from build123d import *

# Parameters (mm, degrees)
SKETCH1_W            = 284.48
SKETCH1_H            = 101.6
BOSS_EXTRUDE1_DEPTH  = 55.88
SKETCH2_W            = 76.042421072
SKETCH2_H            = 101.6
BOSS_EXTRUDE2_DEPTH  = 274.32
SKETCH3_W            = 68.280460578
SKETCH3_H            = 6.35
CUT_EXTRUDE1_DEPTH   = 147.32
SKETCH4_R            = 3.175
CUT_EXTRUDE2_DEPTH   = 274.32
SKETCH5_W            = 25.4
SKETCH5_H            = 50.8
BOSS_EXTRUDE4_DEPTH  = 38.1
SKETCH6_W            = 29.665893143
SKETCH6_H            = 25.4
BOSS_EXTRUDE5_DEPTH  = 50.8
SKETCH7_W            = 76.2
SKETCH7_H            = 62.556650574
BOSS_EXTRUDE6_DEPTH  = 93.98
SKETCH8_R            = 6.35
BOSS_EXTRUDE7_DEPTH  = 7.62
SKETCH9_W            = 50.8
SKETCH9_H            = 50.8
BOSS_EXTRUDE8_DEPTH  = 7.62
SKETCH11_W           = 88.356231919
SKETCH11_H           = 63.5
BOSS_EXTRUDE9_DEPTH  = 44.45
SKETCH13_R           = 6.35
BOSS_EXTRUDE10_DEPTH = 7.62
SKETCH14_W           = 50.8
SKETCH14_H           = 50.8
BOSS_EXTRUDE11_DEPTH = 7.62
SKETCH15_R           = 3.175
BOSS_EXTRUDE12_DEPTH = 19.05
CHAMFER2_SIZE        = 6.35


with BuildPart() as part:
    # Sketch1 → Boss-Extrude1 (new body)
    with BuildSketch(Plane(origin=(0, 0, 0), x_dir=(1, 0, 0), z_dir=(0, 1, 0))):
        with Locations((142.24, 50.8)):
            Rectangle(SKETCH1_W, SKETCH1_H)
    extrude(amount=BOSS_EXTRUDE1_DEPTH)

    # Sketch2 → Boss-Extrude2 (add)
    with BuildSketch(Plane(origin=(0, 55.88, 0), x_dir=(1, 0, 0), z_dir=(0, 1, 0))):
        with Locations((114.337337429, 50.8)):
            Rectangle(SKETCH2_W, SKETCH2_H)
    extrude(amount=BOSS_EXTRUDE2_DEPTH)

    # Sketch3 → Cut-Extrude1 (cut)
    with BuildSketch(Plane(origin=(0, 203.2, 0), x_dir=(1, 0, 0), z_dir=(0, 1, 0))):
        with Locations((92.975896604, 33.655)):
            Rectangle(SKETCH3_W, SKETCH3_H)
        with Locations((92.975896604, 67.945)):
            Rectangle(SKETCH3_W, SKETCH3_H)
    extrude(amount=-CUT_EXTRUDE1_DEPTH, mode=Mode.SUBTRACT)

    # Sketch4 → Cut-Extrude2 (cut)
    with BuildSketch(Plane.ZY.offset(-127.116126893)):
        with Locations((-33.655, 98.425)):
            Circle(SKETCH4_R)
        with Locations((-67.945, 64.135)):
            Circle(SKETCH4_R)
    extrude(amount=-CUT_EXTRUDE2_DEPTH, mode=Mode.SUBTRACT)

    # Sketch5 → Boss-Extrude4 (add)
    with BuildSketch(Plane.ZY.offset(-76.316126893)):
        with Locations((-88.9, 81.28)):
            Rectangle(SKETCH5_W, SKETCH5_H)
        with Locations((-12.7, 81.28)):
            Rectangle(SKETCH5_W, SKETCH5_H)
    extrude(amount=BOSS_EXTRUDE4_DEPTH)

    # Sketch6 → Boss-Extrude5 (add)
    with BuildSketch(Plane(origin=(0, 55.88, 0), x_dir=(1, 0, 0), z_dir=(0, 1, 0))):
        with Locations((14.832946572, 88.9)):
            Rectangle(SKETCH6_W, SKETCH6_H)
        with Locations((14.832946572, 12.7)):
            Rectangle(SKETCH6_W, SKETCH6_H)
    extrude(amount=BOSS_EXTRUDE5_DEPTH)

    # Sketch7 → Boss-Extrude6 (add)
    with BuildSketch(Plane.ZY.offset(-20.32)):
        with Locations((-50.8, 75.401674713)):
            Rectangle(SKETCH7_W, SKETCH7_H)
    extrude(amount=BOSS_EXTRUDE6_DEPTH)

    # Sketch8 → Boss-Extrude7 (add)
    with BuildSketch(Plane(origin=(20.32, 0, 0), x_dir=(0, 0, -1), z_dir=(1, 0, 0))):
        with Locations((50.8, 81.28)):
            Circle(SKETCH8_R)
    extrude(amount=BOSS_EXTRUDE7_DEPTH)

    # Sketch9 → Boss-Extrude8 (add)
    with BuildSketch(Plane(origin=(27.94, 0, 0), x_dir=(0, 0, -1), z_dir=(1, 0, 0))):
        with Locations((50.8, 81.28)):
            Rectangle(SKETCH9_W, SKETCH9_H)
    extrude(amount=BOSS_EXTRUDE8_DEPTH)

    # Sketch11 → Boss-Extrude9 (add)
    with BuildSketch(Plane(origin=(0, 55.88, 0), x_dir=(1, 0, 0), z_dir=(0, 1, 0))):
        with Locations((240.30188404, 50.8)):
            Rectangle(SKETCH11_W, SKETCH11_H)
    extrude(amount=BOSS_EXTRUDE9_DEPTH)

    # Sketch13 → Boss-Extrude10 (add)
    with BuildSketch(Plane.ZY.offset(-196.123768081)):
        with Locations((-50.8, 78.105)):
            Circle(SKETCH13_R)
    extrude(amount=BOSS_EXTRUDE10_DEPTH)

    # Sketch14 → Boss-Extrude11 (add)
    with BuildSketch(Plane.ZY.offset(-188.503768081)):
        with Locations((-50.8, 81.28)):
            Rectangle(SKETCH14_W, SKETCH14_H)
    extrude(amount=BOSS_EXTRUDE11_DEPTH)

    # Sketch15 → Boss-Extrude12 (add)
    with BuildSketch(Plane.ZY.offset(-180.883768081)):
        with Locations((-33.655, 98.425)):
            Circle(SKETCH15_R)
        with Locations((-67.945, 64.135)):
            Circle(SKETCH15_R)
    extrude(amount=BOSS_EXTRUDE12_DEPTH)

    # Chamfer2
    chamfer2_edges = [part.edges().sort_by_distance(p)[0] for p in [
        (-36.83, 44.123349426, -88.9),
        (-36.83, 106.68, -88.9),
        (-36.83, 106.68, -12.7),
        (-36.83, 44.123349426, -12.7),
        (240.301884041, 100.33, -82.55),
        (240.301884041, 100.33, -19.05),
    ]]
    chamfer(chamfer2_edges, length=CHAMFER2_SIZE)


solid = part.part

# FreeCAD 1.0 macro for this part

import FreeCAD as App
import Part
import Sketcher
from FreeCAD import Vector
Q = App.Units.Quantity


def edges_at(feature, points):
    """Names of the edges that pass closest to the given points."""
    edges = feature.Shape.Edges
    near = lambda p: min(range(len(edges)), key=lambda i: edges[i].distToShape(Part.Vertex(*p))[0])
    return sorted({f"Edge{near(p) + 1}" for p in points})

doc = App.newDocument("Part")
body = doc.addObject("PartDesign::Body", "Body")

# Sketch on XZ plane
sketch1 = body.newObject("Sketcher::SketchObject", "Sketch")
sketch1.AttachmentSupport = (doc.getObject("XZ_Plane"), [""])
sketch1.MapMode = "FlatFace"
sketch1.addGeometry(Part.LineSegment(Vector(0, -102, 0), Vector(0, 0, 0)), False)
sketch1.addGeometry(Part.LineSegment(Vector(0, 0, 0), Vector(284, 0, 0)), False)
sketch1.addGeometry(Part.LineSegment(Vector(284, 0, 0), Vector(284, -102, 0)), False)
sketch1.addGeometry(Part.LineSegment(Vector(284, -102, 0), Vector(0, -102, 0)), False)
sketch1.addConstraint(Sketcher.Constraint("Coincident", 0, 2, 1, 1))
sketch1.addConstraint(Sketcher.Constraint("Coincident", 1, 2, 2, 1))
sketch1.addConstraint(Sketcher.Constraint("Coincident", 2, 2, 3, 1))
sketch1.addConstraint(Sketcher.Constraint("Coincident", 3, 2, 0, 1))
sketch1.addConstraint(Sketcher.Constraint("Vertical", 0))
sketch1.addConstraint(Sketcher.Constraint("Horizontal", 1))
sketch1.addConstraint(Sketcher.Constraint("Vertical", 2))
sketch1.addConstraint(Sketcher.Constraint("Horizontal", 3))
sketch1.addConstraint(Sketcher.Constraint("Coincident", 0, 2, -1, 1))
sketch1.addConstraint(Sketcher.Constraint("DistanceY", 0, 1, 0, 2, Q("4 in")))
sketch1.addConstraint(Sketcher.Constraint("DistanceX", 1, 1, 1, 2, Q("11.2 in")))
pad1 = body.newObject("PartDesign::Pad", "Pad")
pad1.Profile = sketch1
pad1.Length = Q("2.2 in")
pad1.Reversed = True

# Sketch on XZ plane
sketch2 = body.newObject("Sketcher::SketchObject", "Sketch001")
sketch2.AttachmentSupport = (doc.getObject("XZ_Plane"), [""])
sketch2.MapMode = "FlatFace"
sketch2.AttachmentOffset = App.Placement(Vector(0, 0, -2.2 * 25.4), App.Rotation())
sketch2.addGeometry(Part.LineSegment(Vector(76, -102, 0), Vector(76, 0, 0)), False)
sketch2.addGeometry(Part.LineSegment(Vector(76, 0, 0), Vector(152, 0, 0)), False)
sketch2.addGeometry(Part.LineSegment(Vector(152, 0, 0), Vector(152, -102, 0)), False)
sketch2.addGeometry(Part.LineSegment(Vector(152, -102, 0), Vector(76, -102, 0)), False)
sketch2.addConstraint(Sketcher.Constraint("Coincident", 0, 2, 1, 1))
sketch2.addConstraint(Sketcher.Constraint("Coincident", 1, 2, 2, 1))
sketch2.addConstraint(Sketcher.Constraint("Coincident", 2, 2, 3, 1))
sketch2.addConstraint(Sketcher.Constraint("Coincident", 3, 2, 0, 1))
sketch2.addConstraint(Sketcher.Constraint("Vertical", 0))
sketch2.addConstraint(Sketcher.Constraint("Horizontal", 1))
sketch2.addConstraint(Sketcher.Constraint("Vertical", 2))
sketch2.addConstraint(Sketcher.Constraint("Horizontal", 3))
sketch2.addConstraint(Sketcher.Constraint("PointOnObject", 0, 2, -1))
sketch2.addConstraint(Sketcher.Constraint("DistanceY", 0, 1, 0, 2, Q("4 in")))
sketch2.addConstraint(Sketcher.Constraint("DistanceX", 1, 1, 1, 2, Q("76.042421 mm")))
sketch2.addConstraint(Sketcher.Constraint("DistanceX", -1, 1, 0, 2, Q("76.316127 mm")))
pad2 = body.newObject("PartDesign::Pad", "Pad001")
pad2.Profile = sketch2
pad2.Length = Q("10.8 in")
pad2.Reversed = True

# Sketch on XZ plane
sketch3 = body.newObject("Sketcher::SketchObject", "Sketch002")
sketch3.AttachmentSupport = (doc.getObject("XZ_Plane"), [""])
sketch3.MapMode = "FlatFace"
sketch3.AttachmentOffset = App.Placement(Vector(0, 0, -8 * 25.4), App.Rotation())
sketch3.addGeometry(Part.LineSegment(Vector(59, -37, 0), Vector(59, -30, 0)), False)
sketch3.addGeometry(Part.LineSegment(Vector(59, -30, 0), Vector(127, -30, 0)), False)
sketch3.addGeometry(Part.LineSegment(Vector(127, -30, 0), Vector(127, -37, 0)), False)
sketch3.addGeometry(Part.LineSegment(Vector(127, -37, 0), Vector(59, -37, 0)), False)
sketch3.addGeometry(Part.LineSegment(Vector(59, -71, 0), Vector(59, -65, 0)), False)
sketch3.addGeometry(Part.LineSegment(Vector(59, -65, 0), Vector(127, -65, 0)), False)
sketch3.addGeometry(Part.LineSegment(Vector(127, -65, 0), Vector(127, -71, 0)), False)
sketch3.addGeometry(Part.LineSegment(Vector(127, -71, 0), Vector(59, -71, 0)), False)
sketch3.addConstraint(Sketcher.Constraint("Coincident", 0, 2, 1, 1))
sketch3.addConstraint(Sketcher.Constraint("Coincident", 1, 2, 2, 1))
sketch3.addConstraint(Sketcher.Constraint("Coincident", 2, 2, 3, 1))
sketch3.addConstraint(Sketcher.Constraint("Coincident", 3, 2, 0, 1))
sketch3.addConstraint(Sketcher.Constraint("Coincident", 4, 2, 5, 1))
sketch3.addConstraint(Sketcher.Constraint("Coincident", 5, 2, 6, 1))
sketch3.addConstraint(Sketcher.Constraint("Coincident", 6, 2, 7, 1))
sketch3.addConstraint(Sketcher.Constraint("Coincident", 7, 2, 4, 1))
sketch3.addConstraint(Sketcher.Constraint("Vertical", 0))
sketch3.addConstraint(Sketcher.Constraint("Horizontal", 1))
sketch3.addConstraint(Sketcher.Constraint("Vertical", 2))
sketch3.addConstraint(Sketcher.Constraint("Horizontal", 3))
sketch3.addConstraint(Sketcher.Constraint("Vertical", 4))
sketch3.addConstraint(Sketcher.Constraint("Horizontal", 5))
sketch3.addConstraint(Sketcher.Constraint("Vertical", 6))
sketch3.addConstraint(Sketcher.Constraint("Horizontal", 7))
sketch3.addConstraint(Sketcher.Constraint("Vertical", 3, 2, 4, 2))
sketch3.addConstraint(Sketcher.Constraint("Vertical", 2, 2, 5, 2))
sketch3.addConstraint(Sketcher.Constraint("Equal", 2, 4))
sketch3.addConstraint(Sketcher.Constraint("DistanceY", 0, 1, 0, 2, Q("0.25 in")))
sketch3.addConstraint(Sketcher.Constraint("DistanceY", 0, 2, -1, 1, Q("1.2 in")))
sketch3.addConstraint(Sketcher.Constraint("DistanceY", 6, 2, -1, 1, Q("2.8 in")))
sketch3.addConstraint(Sketcher.Constraint("DistanceX", 1, 1, 1, 2, Q("68.280461 mm")))
sketch3.addConstraint(Sketcher.Constraint("DistanceX", -1, 1, 0, 2, Q("58.835666 mm")))
pocket1 = body.newObject("PartDesign::Pocket", "Pocket")
pocket1.Profile = sketch3
pocket1.Length = Q("5.8 in")
pocket1.Reversed = True

# Sketch on YZ plane
sketch4 = body.newObject("Sketcher::SketchObject", "Sketch003")
sketch4.AttachmentSupport = (doc.getObject("YZ_Plane"), [""])
sketch4.MapMode = "FlatFace"
sketch4.AttachmentOffset = App.Placement(Vector(0, 0, 127.116127), App.Rotation())
sketch4.addGeometry(Part.Circle(Vector(98.4, -33.7, 0), Vector(0, 0, 1), 3.2), False)
sketch4.addGeometry(Part.Circle(Vector(64.1, -67.9, 0), Vector(0, 0, 1), 3.2), False)
sketch4.addConstraint(Sketcher.Constraint("Equal", 0, 1))
sketch4.addConstraint(Sketcher.Constraint("Diameter", 0, Q("0.25 in")))
sketch4.addConstraint(Sketcher.Constraint("DistanceX", 1, 3, 0, 3, Q("1.35 in")))
sketch4.addConstraint(Sketcher.Constraint("DistanceY", 1, 3, 0, 3, Q("1.35 in")))
sketch4.addConstraint(Sketcher.Constraint("DistanceX", -1, 1, 0, 3, Q("3.875 in")))
sketch4.addConstraint(Sketcher.Constraint("DistanceY", 0, 3, -1, 1, Q("1.325 in")))
pocket2 = body.newObject("PartDesign::Pocket", "Pocket001")
pocket2.Profile = sketch4
pocket2.Length = Q("10.8 in")
pocket2.Reversed = True

# Sketch on YZ plane
sketch5 = body.newObject("Sketcher::SketchObject", "Sketch004")
sketch5.AttachmentSupport = (doc.getObject("YZ_Plane"), [""])
sketch5.MapMode = "FlatFace"
sketch5.AttachmentOffset = App.Placement(Vector(0, 0, 76.316127), App.Rotation())
sketch5.addGeometry(Part.LineSegment(Vector(107, -102, 0), Vector(56, -102, 0)), False)
sketch5.addGeometry(Part.LineSegment(Vector(56, -102, 0), Vector(56, -76, 0)), False)
sketch5.addGeometry(Part.LineSegment(Vector(56, -76, 0), Vector(107, -76, 0)), False)
sketch5.addGeometry(Part.LineSegment(Vector(107, -76, 0), Vector(107, -102, 0)), False)
sketch5.addGeometry(Part.LineSegment(Vector(107, -25, 0), Vector(56, -25, 0)), False)
sketch5.addGeometry(Part.LineSegment(Vector(56, -25, 0), Vector(56, 0, 0)), False)
sketch5.addGeometry(Part.LineSegment(Vector(56, 0, 0), Vector(107, 0, 0)), False)
sketch5.addGeometry(Part.LineSegment(Vector(107, 0, 0), Vector(107, -25, 0)), False)
sketch5.addConstraint(Sketcher.Constraint("Coincident", 0, 2, 1, 1))
sketch5.addConstraint(Sketcher.Constraint("Coincident", 1, 2, 2, 1))
sketch5.addConstraint(Sketcher.Constraint("Coincident", 2, 2, 3, 1))
sketch5.addConstraint(Sketcher.Constraint("Coincident", 3, 2, 0, 1))
sketch5.addConstraint(Sketcher.Constraint("Coincident", 4, 2, 5, 1))
sketch5.addConstraint(Sketcher.Constraint("Coincident", 5, 2, 6, 1))
sketch5.addConstraint(Sketcher.Constraint("Coincident", 6, 2, 7, 1))
sketch5.addConstraint(Sketcher.Constraint("Coincident", 7, 2, 4, 1))
sketch5.addConstraint(Sketcher.Constraint("Horizontal", 0))
sketch5.addConstraint(Sketcher.Constraint("Vertical", 1))
sketch5.addConstraint(Sketcher.Constraint("Horizontal", 2))
sketch5.addConstraint(Sketcher.Constraint("Vertical", 3))
sketch5.addConstraint(Sketcher.Constraint("Horizontal", 4))
sketch5.addConstraint(Sketcher.Constraint("Vertical", 5))
sketch5.addConstraint(Sketcher.Constraint("Horizontal", 6))
sketch5.addConstraint(Sketcher.Constraint("Vertical", 7))
sketch5.addConstraint(Sketcher.Constraint("PointOnObject", 5, 2, -1))
sketch5.addConstraint(Sketcher.Constraint("Vertical", 1, 2, 4, 2))
sketch5.addConstraint(Sketcher.Constraint("Vertical", 3, 2, 6, 2))
sketch5.addConstraint(Sketcher.Constraint("Equal", 3, 5))
sketch5.addConstraint(Sketcher.Constraint("DistanceX", 0, 2, 0, 1, Q("2 in")))
sketch5.addConstraint(Sketcher.Constraint("DistanceY", 1, 1, 1, 2, Q("1 in")))
sketch5.addConstraint(Sketcher.Constraint("DistanceY", 0, 2, -1, 1, Q("4 in")))
sketch5.addConstraint(Sketcher.Constraint("DistanceX", -1, 1, 0, 2, Q("2.2 in")))
pad3 = body.newObject("PartDesign::Pad", "Pad002")
pad3.Profile = sketch5
pad3.Length = Q("1.5 in")
pad3.Reversed = True

# Sketch on XZ plane
sketch6 = body.newObject("Sketcher::SketchObject", "Sketch005")
sketch6.AttachmentSupport = (doc.getObject("XZ_Plane"), [""])
sketch6.MapMode = "FlatFace"
sketch6.AttachmentOffset = App.Placement(Vector(0, 0, -2.2 * 25.4), App.Rotation())
sketch6.addGeometry(Part.LineSegment(Vector(0, -102, 0), Vector(0, -76, 0)), False)
sketch6.addGeometry(Part.LineSegment(Vector(0, -76, 0), Vector(30, -76, 0)), False)
sketch6.addGeometry(Part.LineSegment(Vector(30, -76, 0), Vector(30, -102, 0)), False)
sketch6.addGeometry(Part.LineSegment(Vector(30, -102, 0), Vector(0, -102, 0)), False)
sketch6.addGeometry(Part.LineSegment(Vector(0, -25, 0), Vector(0, 0, 0)), False)
sketch6.addGeometry(Part.LineSegment(Vector(0, 0, 0), Vector(30, 0, 0)), False)
sketch6.addGeometry(Part.LineSegment(Vector(30, 0, 0), Vector(30, -25, 0)), False)
sketch6.addGeometry(Part.LineSegment(Vector(30, -25, 0), Vector(0, -25, 0)), False)
sketch6.addConstraint(Sketcher.Constraint("Coincident", 0, 2, 1, 1))
sketch6.addConstraint(Sketcher.Constraint("Coincident", 1, 2, 2, 1))
sketch6.addConstraint(Sketcher.Constraint("Coincident", 2, 2, 3, 1))
sketch6.addConstraint(Sketcher.Constraint("Coincident", 3, 2, 0, 1))
sketch6.addConstraint(Sketcher.Constraint("Coincident", 4, 2, 5, 1))
sketch6.addConstraint(Sketcher.Constraint("Coincident", 5, 2, 6, 1))
sketch6.addConstraint(Sketcher.Constraint("Coincident", 6, 2, 7, 1))
sketch6.addConstraint(Sketcher.Constraint("Coincident", 7, 2, 4, 1))
sketch6.addConstraint(Sketcher.Constraint("Vertical", 0))
sketch6.addConstraint(Sketcher.Constraint("Horizontal", 1))
sketch6.addConstraint(Sketcher.Constraint("Vertical", 2))
sketch6.addConstraint(Sketcher.Constraint("Horizontal", 3))
sketch6.addConstraint(Sketcher.Constraint("Vertical", 4))
sketch6.addConstraint(Sketcher.Constraint("Horizontal", 5))
sketch6.addConstraint(Sketcher.Constraint("Vertical", 6))
sketch6.addConstraint(Sketcher.Constraint("Horizontal", 7))
sketch6.addConstraint(Sketcher.Constraint("Coincident", 4, 2, -1, 1))
sketch6.addConstraint(Sketcher.Constraint("PointOnObject", 0, 2, -2))
sketch6.addConstraint(Sketcher.Constraint("Vertical", 2, 2, 5, 2))
sketch6.addConstraint(Sketcher.Constraint("Equal", 2, 4))
sketch6.addConstraint(Sketcher.Constraint("DistanceY", 0, 1, 0, 2, Q("1 in")))
sketch6.addConstraint(Sketcher.Constraint("DistanceY", 0, 2, -1, 1, Q("3 in")))
sketch6.addConstraint(Sketcher.Constraint("DistanceX", 1, 1, 1, 2, Q("29.665893 mm")))
pad4 = body.newObject("PartDesign::Pad", "Pad003")
pad4.Profile = sketch6
pad4.Length = Q("2 in")
pad4.Reversed = True

# Sketch on YZ plane
sketch7 = body.newObject("Sketcher::SketchObject", "Sketch006")
sketch7.AttachmentSupport = (doc.getObject("YZ_Plane"), [""])
sketch7.MapMode = "FlatFace"
sketch7.AttachmentOffset = App.Placement(Vector(0, 0, 0.8 * 25.4), App.Rotation())
sketch7.addGeometry(Part.LineSegment(Vector(107, -89, 0), Vector(44, -89, 0)), False)
sketch7.addGeometry(Part.LineSegment(Vector(44, -89, 0), Vector(44, -13, 0)), False)
sketch7.addGeometry(Part.LineSegment(Vector(44, -13, 0), Vector(107, -13, 0)), False)
sketch7.addGeometry(Part.LineSegment(Vector(107, -13, 0), Vector(107, -89, 0)), False)
sketch7.addConstraint(Sketcher.Constraint("Coincident", 0, 2, 1, 1))
sketch7.addConstraint(Sketcher.Constraint("Coincident", 1, 2, 2, 1))
sketch7.addConstraint(Sketcher.Constraint("Coincident", 2, 2, 3, 1))
sketch7.addConstraint(Sketcher.Constraint("Coincident", 3, 2, 0, 1))
sketch7.addConstraint(Sketcher.Constraint("Horizontal", 0))
sketch7.addConstraint(Sketcher.Constraint("Vertical", 1))
sketch7.addConstraint(Sketcher.Constraint("Horizontal", 2))
sketch7.addConstraint(Sketcher.Constraint("Vertical", 3))
sketch7.addConstraint(Sketcher.Constraint("DistanceY", 1, 1, 1, 2, Q("3 in")))
sketch7.addConstraint(Sketcher.Constraint("DistanceY", 0, 2, -1, 1, Q("3.5 in")))
sketch7.addConstraint(Sketcher.Constraint("DistanceX", -1, 1, 2, 2, Q("4.2 in")))
sketch7.addConstraint(Sketcher.Constraint("DistanceX", 0, 2, 0, 1, Q("62.556651 mm")))
pad5 = body.newObject("PartDesign::Pad", "Pad004")
pad5.Profile = sketch7
pad5.Length = Q("3.7 in")
pad5.Reversed = True

# Sketch on YZ plane
sketch8 = body.newObject("Sketcher::SketchObject", "Sketch007")
sketch8.AttachmentSupport = (doc.getObject("YZ_Plane"), [""])
sketch8.MapMode = "FlatFace"
sketch8.AttachmentOffset = App.Placement(Vector(0, 0, 0.8 * 25.4), App.Rotation())
sketch8.addGeometry(Part.Circle(Vector(81, -51, 0), Vector(0, 0, 1), 6), False)
sketch8.addConstraint(Sketcher.Constraint("Diameter", 0, Q("0.5 in")))
sketch8.addConstraint(Sketcher.Constraint("DistanceY", 0, 3, -1, 1, Q("2 in")))
sketch8.addConstraint(Sketcher.Constraint("DistanceX", -1, 1, 0, 3, Q("3.2 in")))
pad6 = body.newObject("PartDesign::Pad", "Pad005")
pad6.Profile = sketch8
pad6.Length = Q("0.3 in")

# Sketch on YZ plane
sketch9 = body.newObject("Sketcher::SketchObject", "Sketch008")
sketch9.AttachmentSupport = (doc.getObject("YZ_Plane"), [""])
sketch9.MapMode = "FlatFace"
sketch9.AttachmentOffset = App.Placement(Vector(0, 0, 1.1 * 25.4), App.Rotation())
sketch9.addGeometry(Part.LineSegment(Vector(107, -25, 0), Vector(56, -25, 0)), False)
sketch9.addGeometry(Part.LineSegment(Vector(56, -25, 0), Vector(56, -76, 0)), False)
sketch9.addGeometry(Part.LineSegment(Vector(56, -76, 0), Vector(107, -76, 0)), False)
sketch9.addGeometry(Part.LineSegment(Vector(107, -76, 0), Vector(107, -25, 0)), False)
sketch9.addConstraint(Sketcher.Constraint("Coincident", 0, 2, 1, 1))
sketch9.addConstraint(Sketcher.Constraint("Coincident", 1, 2, 2, 1))
sketch9.addConstraint(Sketcher.Constraint("Coincident", 2, 2, 3, 1))
sketch9.addConstraint(Sketcher.Constraint("Coincident", 3, 2, 0, 1))
sketch9.addConstraint(Sketcher.Constraint("Horizontal", 0))
sketch9.addConstraint(Sketcher.Constraint("Vertical", 1))
sketch9.addConstraint(Sketcher.Constraint("Horizontal", 2))
sketch9.addConstraint(Sketcher.Constraint("Vertical", 3))
sketch9.addConstraint(Sketcher.Constraint("Equal", 2, 1))
sketch9.addConstraint(Sketcher.Constraint("DistanceX", 0, 2, 0, 1, Q("2 in")))
sketch9.addConstraint(Sketcher.Constraint("DistanceY", 0, 2, -1, 1, Q("1 in")))
sketch9.addConstraint(Sketcher.Constraint("DistanceX", -1, 1, 0, 2, Q("2.2 in")))
pad7 = body.newObject("PartDesign::Pad", "Pad006")
pad7.Profile = sketch9
pad7.Length = Q("0.3 in")

# Sketch on XZ plane
sketch10 = body.newObject("Sketcher::SketchObject", "Sketch009")
sketch10.AttachmentSupport = (doc.getObject("XZ_Plane"), [""])
sketch10.MapMode = "FlatFace"
sketch10.AttachmentOffset = App.Placement(Vector(0, 0, -2.2 * 25.4), App.Rotation())
sketch10.addGeometry(Part.LineSegment(Vector(196, -83, 0), Vector(196, -19, 0)), False)
sketch10.addGeometry(Part.LineSegment(Vector(196, -19, 0), Vector(284, -19, 0)), False)
sketch10.addGeometry(Part.LineSegment(Vector(284, -19, 0), Vector(284, -83, 0)), False)
sketch10.addGeometry(Part.LineSegment(Vector(284, -83, 0), Vector(196, -83, 0)), False)
sketch10.addConstraint(Sketcher.Constraint("Coincident", 0, 2, 1, 1))
sketch10.addConstraint(Sketcher.Constraint("Coincident", 1, 2, 2, 1))
sketch10.addConstraint(Sketcher.Constraint("Coincident", 2, 2, 3, 1))
sketch10.addConstraint(Sketcher.Constraint("Coincident", 3, 2, 0, 1))
sketch10.addConstraint(Sketcher.Constraint("Vertical", 0))
sketch10.addConstraint(Sketcher.Constraint("Horizontal", 1))
sketch10.addConstraint(Sketcher.Constraint("Vertical", 2))
sketch10.addConstraint(Sketcher.Constraint("Horizontal", 3))
sketch10.addConstraint(Sketcher.Constraint("DistanceY", 0, 1, 0, 2, Q("2.5 in")))
sketch10.addConstraint(Sketcher.Constraint("DistanceX", -1, 1, 1, 2, Q("11.2 in")))
sketch10.addConstraint(Sketcher.Constraint("DistanceY", 0, 2, -1, 1, Q("0.75 in")))
sketch10.addConstraint(Sketcher.Constraint("DistanceX", 1, 1, 1, 2, Q("88.356232 mm")))
pad8 = body.newObject("PartDesign::Pad", "Pad007")
pad8.Profile = sketch10
pad8.Length = Q("1.75 in")
pad8.Reversed = True

# Sketch on YZ plane
sketch11 = body.newObject("Sketcher::SketchObject", "Sketch010")
sketch11.AttachmentSupport = (doc.getObject("YZ_Plane"), [""])
sketch11.MapMode = "FlatFace"
sketch11.AttachmentOffset = App.Placement(Vector(0, 0, 196.123768), App.Rotation())
sketch11.addGeometry(Part.Circle(Vector(78, -51, 0), Vector(0, 0, 1), 6), False)
sketch11.addConstraint(Sketcher.Constraint("Diameter", 0, Q("0.5 in")))
sketch11.addConstraint(Sketcher.Constraint("DistanceY", 0, 3, -1, 1, Q("2 in")))
sketch11.addConstraint(Sketcher.Constraint("DistanceX", -1, 1, 0, 3, Q("3.075 in")))
pad9 = body.newObject("PartDesign::Pad", "Pad008")
pad9.Profile = sketch11
pad9.Length = Q("0.3 in")
pad9.Reversed = True

# Sketch on YZ plane
sketch12 = body.newObject("Sketcher::SketchObject", "Sketch011")
sketch12.AttachmentSupport = (doc.getObject("YZ_Plane"), [""])
sketch12.MapMode = "FlatFace"
sketch12.AttachmentOffset = App.Placement(Vector(0, 0, 188.503768), App.Rotation())
sketch12.addGeometry(Part.LineSegment(Vector(107, -76, 0), Vector(56, -76, 0)), False)
sketch12.addGeometry(Part.LineSegment(Vector(56, -76, 0), Vector(56, -25, 0)), False)
sketch12.addGeometry(Part.LineSegment(Vector(56, -25, 0), Vector(107, -25, 0)), False)
sketch12.addGeometry(Part.LineSegment(Vector(107, -25, 0), Vector(107, -76, 0)), False)
sketch12.addConstraint(Sketcher.Constraint("Coincident", 0, 2, 1, 1))
sketch12.addConstraint(Sketcher.Constraint("Coincident", 1, 2, 2, 1))
sketch12.addConstraint(Sketcher.Constraint("Coincident", 2, 2, 3, 1))
sketch12.addConstraint(Sketcher.Constraint("Coincident", 3, 2, 0, 1))
sketch12.addConstraint(Sketcher.Constraint("Horizontal", 0))
sketch12.addConstraint(Sketcher.Constraint("Vertical", 1))
sketch12.addConstraint(Sketcher.Constraint("Horizontal", 2))
sketch12.addConstraint(Sketcher.Constraint("Vertical", 3))
sketch12.addConstraint(Sketcher.Constraint("Equal", 2, 1))
sketch12.addConstraint(Sketcher.Constraint("DistanceX", 0, 2, 0, 1, Q("2 in")))
sketch12.addConstraint(Sketcher.Constraint("DistanceY", 0, 2, -1, 1, Q("3 in")))
sketch12.addConstraint(Sketcher.Constraint("DistanceX", -1, 1, 0, 2, Q("2.2 in")))
pad10 = body.newObject("PartDesign::Pad", "Pad009")
pad10.Profile = sketch12
pad10.Length = Q("0.3 in")
pad10.Reversed = True

# Sketch on YZ plane
sketch13 = body.newObject("Sketcher::SketchObject", "Sketch012")
sketch13.AttachmentSupport = (doc.getObject("YZ_Plane"), [""])
sketch13.MapMode = "FlatFace"
sketch13.AttachmentOffset = App.Placement(Vector(0, 0, 180.883768), App.Rotation())
sketch13.addGeometry(Part.Circle(Vector(98.4, -33.7, 0), Vector(0, 0, 1), 3.2), False)
sketch13.addGeometry(Part.Circle(Vector(64.1, -67.9, 0), Vector(0, 0, 1), 3.2), False)
sketch13.addConstraint(Sketcher.Constraint("Equal", 0, 1))
sketch13.addConstraint(Sketcher.Constraint("Diameter", 0, Q("0.25 in")))
sketch13.addConstraint(Sketcher.Constraint("DistanceX", 1, 3, 0, 3, Q("1.35 in")))
sketch13.addConstraint(Sketcher.Constraint("DistanceY", 1, 3, 0, 3, Q("1.35 in")))
sketch13.addConstraint(Sketcher.Constraint("DistanceX", -1, 1, 0, 3, Q("3.875 in")))
sketch13.addConstraint(Sketcher.Constraint("DistanceY", 0, 3, -1, 1, Q("1.325 in")))
pad11 = body.newObject("PartDesign::Pad", "Pad010")
pad11.Profile = sketch13
pad11.Length = Q("0.75 in")
pad11.Reversed = True
doc.recompute()

chamfer = body.newObject("PartDesign::Chamfer", "Chamfer")
chamfer.Base = (pad11, edges_at(pad11, [
    (-36.83, 44.123, -88.9),
    (-36.83, 106.68, -88.9),
    (-36.83, 106.68, -12.7),
    (-36.83, 44.123, -12.7),
    (240.302, 100.33, -82.55),
    (240.302, 100.33, -19.05),
]))
chamfer.Size = Q("0.25 in")

doc.recompute()
